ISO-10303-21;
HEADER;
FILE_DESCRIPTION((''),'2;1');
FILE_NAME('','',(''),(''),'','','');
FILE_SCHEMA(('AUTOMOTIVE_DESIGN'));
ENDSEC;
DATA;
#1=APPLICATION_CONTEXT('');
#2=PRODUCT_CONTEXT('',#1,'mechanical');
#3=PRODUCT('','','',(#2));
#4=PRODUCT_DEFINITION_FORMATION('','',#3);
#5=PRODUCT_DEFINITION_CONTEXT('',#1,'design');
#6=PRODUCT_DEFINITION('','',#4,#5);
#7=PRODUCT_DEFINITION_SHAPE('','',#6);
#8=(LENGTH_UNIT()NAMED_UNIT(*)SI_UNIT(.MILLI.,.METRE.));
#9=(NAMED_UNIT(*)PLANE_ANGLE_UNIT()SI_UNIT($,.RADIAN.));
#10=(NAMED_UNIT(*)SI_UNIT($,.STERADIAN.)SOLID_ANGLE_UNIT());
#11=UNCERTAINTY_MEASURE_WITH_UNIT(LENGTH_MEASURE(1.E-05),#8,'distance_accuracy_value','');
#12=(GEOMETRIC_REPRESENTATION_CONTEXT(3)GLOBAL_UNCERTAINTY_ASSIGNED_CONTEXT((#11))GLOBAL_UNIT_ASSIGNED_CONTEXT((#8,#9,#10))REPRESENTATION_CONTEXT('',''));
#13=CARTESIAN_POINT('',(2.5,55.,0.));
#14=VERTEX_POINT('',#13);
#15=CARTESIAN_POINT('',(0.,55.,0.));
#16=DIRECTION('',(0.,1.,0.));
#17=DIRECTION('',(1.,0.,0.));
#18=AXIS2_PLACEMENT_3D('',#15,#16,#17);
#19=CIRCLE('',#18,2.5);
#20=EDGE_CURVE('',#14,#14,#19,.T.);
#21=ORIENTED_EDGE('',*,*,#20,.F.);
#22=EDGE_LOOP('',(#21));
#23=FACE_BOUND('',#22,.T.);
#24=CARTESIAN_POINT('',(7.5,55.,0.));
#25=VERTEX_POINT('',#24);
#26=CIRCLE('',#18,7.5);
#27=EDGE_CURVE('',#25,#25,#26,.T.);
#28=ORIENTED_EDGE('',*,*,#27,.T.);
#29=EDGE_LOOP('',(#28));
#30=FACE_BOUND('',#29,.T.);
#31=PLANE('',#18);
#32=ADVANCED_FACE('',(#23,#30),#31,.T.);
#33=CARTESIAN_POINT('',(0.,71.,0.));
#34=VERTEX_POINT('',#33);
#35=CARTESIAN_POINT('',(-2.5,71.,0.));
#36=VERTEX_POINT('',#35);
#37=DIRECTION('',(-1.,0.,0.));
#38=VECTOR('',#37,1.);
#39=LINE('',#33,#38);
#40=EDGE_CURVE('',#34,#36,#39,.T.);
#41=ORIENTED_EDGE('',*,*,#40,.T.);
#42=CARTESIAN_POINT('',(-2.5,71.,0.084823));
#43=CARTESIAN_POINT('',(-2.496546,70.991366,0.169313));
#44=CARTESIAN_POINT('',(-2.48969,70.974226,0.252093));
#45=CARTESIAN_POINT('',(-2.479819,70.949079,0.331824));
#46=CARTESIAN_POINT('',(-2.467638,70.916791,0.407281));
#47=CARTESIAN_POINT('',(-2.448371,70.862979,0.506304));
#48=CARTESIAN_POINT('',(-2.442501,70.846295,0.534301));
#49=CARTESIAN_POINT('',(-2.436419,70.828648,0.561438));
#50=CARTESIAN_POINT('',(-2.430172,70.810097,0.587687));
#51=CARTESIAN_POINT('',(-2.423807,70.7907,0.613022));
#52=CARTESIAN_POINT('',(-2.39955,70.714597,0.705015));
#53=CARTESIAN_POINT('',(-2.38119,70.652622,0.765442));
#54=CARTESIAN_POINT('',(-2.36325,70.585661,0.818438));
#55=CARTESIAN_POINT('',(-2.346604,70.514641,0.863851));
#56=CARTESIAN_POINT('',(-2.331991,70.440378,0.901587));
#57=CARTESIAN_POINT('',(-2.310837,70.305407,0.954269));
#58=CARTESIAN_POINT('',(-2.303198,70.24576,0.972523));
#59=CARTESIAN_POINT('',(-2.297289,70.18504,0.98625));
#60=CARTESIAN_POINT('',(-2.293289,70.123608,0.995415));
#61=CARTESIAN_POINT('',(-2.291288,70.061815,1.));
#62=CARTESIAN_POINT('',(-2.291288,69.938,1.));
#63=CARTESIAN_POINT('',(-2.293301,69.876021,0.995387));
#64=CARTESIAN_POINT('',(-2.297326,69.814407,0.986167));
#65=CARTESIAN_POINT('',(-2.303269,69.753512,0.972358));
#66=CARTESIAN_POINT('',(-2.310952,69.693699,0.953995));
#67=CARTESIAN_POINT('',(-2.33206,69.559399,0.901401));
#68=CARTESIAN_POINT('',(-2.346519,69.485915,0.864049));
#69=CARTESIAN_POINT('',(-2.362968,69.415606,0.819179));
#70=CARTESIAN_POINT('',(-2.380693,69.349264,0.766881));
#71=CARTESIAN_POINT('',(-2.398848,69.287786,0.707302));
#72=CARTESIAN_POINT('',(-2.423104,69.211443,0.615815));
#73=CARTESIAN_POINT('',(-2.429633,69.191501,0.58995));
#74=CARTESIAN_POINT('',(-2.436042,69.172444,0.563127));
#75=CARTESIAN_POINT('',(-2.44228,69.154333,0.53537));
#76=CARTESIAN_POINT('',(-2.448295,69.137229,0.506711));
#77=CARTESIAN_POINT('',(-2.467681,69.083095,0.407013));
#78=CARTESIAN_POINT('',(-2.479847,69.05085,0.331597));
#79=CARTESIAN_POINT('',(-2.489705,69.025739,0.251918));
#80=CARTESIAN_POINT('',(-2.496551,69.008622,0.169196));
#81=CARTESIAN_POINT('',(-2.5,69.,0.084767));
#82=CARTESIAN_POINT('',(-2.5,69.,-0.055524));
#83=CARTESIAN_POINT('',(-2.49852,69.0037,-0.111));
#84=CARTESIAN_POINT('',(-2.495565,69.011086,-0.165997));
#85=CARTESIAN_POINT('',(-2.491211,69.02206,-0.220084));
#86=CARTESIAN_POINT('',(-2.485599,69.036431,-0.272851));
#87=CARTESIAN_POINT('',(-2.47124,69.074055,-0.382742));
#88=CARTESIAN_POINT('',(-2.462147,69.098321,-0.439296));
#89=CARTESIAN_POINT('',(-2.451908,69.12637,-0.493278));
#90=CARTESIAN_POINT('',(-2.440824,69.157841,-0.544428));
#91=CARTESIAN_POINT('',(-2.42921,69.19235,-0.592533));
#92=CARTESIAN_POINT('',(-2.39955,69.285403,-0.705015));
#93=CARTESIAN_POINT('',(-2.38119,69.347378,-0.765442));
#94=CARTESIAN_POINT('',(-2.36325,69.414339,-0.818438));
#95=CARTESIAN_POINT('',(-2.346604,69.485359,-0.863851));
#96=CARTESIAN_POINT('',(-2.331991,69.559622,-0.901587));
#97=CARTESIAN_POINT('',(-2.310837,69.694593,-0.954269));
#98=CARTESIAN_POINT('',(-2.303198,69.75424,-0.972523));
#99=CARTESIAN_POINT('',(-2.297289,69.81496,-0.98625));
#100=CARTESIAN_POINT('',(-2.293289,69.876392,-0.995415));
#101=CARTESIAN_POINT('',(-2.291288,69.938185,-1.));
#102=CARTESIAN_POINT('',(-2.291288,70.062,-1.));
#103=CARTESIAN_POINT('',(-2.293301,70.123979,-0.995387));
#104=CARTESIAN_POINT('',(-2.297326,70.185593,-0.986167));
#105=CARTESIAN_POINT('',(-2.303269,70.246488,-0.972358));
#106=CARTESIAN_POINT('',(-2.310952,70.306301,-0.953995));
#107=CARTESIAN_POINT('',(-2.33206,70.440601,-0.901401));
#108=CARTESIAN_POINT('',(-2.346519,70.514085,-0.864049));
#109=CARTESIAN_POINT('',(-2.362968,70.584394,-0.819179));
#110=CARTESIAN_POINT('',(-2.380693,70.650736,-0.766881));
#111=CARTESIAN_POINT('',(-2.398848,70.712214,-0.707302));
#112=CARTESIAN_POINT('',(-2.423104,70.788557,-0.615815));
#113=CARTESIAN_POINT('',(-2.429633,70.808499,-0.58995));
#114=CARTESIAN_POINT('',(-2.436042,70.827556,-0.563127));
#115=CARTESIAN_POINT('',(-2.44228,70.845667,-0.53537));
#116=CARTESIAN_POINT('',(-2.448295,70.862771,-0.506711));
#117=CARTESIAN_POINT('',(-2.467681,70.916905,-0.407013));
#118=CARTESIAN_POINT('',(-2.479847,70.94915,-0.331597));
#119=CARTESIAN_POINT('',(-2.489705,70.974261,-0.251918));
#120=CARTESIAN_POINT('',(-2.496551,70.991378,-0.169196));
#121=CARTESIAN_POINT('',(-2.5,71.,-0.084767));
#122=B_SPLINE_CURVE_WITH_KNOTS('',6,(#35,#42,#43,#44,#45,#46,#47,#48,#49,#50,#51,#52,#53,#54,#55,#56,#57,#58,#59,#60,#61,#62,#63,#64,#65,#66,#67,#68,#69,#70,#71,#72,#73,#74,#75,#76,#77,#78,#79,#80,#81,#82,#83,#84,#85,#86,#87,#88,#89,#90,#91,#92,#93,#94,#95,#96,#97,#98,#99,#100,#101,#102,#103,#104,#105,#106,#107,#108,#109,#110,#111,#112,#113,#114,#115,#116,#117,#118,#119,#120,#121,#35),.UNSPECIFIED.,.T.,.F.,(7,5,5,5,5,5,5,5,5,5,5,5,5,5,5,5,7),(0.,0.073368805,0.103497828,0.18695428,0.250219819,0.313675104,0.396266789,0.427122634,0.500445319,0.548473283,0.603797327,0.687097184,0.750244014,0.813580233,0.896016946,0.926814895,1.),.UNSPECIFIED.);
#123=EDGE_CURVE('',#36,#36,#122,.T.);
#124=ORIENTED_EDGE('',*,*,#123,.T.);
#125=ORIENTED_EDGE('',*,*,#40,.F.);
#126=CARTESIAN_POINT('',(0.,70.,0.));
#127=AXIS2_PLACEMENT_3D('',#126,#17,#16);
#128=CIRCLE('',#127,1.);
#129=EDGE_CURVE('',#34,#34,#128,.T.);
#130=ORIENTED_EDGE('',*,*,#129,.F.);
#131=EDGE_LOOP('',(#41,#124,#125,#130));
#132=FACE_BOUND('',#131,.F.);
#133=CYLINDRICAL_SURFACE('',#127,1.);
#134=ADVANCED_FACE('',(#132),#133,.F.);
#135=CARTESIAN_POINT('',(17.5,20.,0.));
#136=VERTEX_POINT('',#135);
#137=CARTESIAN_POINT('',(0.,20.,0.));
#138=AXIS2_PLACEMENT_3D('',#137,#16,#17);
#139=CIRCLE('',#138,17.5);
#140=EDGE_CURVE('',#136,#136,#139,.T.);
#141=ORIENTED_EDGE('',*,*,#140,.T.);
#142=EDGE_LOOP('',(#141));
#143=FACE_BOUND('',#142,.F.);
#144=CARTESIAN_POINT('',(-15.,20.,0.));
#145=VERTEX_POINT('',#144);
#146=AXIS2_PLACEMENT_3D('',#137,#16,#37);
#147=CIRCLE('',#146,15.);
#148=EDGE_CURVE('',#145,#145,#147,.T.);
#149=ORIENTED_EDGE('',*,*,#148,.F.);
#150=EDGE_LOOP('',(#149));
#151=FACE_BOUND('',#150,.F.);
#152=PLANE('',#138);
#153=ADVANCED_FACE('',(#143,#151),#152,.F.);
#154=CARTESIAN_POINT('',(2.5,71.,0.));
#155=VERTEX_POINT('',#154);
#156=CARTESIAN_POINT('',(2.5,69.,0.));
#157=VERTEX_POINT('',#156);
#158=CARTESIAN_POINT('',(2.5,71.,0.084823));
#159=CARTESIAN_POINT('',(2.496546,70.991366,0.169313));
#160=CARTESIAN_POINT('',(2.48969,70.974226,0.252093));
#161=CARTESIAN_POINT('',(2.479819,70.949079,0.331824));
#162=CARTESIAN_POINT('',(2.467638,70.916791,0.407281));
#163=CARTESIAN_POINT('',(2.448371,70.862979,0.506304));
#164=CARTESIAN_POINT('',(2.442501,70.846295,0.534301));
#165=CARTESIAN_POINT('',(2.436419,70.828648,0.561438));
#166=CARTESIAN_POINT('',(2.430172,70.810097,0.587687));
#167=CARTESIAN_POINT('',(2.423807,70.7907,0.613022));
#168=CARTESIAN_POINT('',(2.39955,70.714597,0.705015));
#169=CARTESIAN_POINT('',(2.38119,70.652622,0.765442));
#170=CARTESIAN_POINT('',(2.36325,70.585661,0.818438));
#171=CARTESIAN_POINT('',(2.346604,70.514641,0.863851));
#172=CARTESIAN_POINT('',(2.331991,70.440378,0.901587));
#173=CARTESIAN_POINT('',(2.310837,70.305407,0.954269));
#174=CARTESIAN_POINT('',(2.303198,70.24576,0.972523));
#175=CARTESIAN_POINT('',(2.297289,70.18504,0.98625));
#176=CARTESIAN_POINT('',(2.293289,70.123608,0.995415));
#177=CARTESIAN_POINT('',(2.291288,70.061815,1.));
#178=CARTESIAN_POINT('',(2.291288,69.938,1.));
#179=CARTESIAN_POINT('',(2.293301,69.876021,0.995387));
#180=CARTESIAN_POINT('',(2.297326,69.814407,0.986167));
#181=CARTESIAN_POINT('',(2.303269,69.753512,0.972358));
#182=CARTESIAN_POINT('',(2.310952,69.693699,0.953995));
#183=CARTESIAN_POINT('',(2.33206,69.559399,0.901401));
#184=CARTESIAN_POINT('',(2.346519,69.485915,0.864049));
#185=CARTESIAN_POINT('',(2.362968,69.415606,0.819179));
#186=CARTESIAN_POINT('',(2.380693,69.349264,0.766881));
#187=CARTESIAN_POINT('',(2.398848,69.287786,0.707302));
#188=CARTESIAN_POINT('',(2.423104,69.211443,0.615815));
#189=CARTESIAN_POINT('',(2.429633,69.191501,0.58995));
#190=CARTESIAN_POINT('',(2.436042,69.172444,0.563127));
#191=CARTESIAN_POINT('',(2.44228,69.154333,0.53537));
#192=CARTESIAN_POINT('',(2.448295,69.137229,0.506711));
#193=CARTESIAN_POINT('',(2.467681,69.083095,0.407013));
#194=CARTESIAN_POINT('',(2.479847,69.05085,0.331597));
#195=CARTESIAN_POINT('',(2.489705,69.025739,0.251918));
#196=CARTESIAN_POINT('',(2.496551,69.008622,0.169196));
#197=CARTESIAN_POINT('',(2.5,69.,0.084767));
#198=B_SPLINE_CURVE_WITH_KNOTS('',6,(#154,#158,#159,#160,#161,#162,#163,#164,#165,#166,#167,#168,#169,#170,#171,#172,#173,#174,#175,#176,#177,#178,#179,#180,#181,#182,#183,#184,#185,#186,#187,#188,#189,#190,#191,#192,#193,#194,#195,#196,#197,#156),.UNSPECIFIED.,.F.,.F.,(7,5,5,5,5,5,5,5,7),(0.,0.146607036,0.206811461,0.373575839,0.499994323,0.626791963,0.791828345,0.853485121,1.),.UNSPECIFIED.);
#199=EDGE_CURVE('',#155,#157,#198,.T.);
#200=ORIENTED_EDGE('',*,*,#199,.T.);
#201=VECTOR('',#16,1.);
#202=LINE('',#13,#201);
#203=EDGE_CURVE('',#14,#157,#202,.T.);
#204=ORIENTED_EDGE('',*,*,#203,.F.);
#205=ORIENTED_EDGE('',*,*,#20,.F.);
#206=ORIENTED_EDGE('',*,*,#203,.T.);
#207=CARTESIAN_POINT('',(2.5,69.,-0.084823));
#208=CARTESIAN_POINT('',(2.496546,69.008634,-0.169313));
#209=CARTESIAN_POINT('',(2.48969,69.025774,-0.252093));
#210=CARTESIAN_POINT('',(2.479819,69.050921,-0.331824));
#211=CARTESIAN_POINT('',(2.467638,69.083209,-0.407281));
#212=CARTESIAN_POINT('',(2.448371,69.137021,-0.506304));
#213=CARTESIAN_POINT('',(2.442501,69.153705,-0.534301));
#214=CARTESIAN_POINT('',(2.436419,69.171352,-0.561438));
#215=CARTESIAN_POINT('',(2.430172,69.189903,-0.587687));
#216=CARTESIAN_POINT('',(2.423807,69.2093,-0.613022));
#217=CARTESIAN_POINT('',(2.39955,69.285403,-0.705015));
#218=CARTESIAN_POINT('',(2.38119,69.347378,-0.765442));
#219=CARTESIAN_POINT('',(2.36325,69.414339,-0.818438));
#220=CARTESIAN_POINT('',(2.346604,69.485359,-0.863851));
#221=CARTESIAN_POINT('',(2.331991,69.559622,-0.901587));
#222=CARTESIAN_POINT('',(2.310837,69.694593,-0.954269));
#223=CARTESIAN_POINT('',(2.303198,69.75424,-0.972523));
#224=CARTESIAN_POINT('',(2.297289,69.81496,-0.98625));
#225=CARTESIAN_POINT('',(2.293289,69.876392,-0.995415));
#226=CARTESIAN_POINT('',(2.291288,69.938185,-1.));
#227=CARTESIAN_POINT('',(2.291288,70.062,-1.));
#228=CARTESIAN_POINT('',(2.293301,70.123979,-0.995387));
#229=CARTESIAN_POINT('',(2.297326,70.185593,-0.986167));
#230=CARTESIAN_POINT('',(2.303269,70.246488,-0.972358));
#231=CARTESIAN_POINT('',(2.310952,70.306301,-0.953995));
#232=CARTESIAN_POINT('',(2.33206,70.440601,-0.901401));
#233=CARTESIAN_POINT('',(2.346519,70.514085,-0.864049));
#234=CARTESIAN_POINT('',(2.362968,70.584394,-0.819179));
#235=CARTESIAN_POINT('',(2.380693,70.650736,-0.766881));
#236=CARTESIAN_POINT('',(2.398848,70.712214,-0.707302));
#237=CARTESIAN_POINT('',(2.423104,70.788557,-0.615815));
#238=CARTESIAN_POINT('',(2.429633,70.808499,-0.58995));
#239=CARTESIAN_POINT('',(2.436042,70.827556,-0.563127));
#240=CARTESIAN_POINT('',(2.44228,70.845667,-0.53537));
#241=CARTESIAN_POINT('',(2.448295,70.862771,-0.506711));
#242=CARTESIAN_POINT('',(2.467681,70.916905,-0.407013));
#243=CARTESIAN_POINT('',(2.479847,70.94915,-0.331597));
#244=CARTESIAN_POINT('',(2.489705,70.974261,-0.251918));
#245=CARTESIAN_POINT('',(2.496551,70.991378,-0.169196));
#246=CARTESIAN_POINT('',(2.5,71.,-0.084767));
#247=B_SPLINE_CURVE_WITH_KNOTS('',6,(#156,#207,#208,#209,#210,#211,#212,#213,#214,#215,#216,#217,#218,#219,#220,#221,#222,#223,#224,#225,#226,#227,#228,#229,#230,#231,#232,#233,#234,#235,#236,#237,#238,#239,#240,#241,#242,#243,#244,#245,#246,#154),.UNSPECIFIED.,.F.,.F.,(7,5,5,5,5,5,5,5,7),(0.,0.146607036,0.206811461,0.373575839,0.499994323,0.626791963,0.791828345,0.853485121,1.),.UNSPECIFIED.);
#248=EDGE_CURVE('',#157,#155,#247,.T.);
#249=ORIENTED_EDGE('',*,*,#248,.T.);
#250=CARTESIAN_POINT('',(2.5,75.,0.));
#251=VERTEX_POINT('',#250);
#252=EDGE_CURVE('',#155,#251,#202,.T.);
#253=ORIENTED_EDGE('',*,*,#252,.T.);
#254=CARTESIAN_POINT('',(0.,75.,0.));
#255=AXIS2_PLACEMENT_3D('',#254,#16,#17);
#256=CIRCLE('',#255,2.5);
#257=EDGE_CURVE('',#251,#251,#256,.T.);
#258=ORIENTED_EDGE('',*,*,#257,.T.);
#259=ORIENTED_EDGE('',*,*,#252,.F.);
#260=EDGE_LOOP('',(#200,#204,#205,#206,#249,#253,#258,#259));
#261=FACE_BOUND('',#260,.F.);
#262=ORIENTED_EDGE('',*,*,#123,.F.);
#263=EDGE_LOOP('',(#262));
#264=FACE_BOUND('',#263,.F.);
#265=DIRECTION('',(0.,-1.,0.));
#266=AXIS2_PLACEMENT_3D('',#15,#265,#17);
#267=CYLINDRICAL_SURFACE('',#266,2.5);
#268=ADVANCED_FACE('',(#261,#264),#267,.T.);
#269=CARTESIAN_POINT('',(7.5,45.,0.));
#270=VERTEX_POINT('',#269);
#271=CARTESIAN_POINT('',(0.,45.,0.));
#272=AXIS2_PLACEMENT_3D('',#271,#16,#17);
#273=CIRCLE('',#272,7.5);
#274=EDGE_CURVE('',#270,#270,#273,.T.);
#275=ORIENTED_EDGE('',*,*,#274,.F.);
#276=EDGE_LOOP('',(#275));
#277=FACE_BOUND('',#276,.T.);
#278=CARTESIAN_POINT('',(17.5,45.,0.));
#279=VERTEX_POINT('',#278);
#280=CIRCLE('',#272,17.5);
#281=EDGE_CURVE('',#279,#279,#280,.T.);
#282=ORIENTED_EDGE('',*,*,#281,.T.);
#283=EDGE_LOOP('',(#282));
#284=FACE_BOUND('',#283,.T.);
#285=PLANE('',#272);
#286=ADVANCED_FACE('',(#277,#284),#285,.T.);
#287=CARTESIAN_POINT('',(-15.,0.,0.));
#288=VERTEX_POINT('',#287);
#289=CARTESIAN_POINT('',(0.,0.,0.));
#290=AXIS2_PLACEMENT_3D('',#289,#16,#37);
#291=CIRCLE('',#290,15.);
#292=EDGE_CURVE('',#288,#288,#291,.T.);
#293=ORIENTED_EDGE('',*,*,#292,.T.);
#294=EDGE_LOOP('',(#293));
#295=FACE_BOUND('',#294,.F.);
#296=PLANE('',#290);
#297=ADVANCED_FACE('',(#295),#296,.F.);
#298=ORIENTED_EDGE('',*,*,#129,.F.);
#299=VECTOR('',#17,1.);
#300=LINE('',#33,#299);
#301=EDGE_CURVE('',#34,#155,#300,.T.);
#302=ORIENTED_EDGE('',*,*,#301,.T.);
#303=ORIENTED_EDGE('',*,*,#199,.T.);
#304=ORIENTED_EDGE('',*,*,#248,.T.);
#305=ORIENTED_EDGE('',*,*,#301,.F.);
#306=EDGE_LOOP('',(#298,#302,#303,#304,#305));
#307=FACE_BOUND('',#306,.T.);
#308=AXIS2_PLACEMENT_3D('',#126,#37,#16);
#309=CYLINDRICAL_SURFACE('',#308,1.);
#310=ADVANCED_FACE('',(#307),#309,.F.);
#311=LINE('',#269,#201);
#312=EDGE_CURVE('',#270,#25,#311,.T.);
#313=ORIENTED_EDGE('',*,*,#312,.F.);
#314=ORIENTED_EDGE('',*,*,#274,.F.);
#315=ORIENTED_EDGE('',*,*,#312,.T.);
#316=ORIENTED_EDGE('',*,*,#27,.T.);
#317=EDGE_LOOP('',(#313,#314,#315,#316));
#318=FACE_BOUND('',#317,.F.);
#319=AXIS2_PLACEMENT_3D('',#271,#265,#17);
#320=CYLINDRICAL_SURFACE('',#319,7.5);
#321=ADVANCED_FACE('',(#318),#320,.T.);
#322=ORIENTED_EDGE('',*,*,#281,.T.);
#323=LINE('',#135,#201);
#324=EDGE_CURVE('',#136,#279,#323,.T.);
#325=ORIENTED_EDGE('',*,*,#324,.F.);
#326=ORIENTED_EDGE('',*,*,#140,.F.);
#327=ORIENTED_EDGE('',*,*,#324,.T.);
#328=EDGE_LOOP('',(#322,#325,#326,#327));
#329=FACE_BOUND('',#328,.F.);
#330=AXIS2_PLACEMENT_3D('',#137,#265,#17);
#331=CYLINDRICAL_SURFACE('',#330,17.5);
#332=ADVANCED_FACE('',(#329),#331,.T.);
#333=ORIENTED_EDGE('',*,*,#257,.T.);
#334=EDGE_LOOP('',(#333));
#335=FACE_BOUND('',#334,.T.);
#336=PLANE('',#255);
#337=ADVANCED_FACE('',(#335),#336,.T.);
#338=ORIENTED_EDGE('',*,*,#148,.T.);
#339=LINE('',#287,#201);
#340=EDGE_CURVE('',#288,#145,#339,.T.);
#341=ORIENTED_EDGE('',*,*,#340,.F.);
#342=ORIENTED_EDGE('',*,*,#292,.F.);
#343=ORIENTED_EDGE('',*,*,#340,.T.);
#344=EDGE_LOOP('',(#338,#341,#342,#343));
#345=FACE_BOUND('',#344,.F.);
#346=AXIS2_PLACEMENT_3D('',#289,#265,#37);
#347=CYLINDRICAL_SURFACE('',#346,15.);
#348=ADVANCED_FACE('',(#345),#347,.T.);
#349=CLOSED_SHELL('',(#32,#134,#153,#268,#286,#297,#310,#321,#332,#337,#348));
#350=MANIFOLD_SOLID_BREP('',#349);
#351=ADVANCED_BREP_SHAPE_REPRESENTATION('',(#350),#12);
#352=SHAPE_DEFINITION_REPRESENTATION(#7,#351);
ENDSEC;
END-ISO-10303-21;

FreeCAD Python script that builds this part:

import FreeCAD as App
import Part
import Sketcher
from FreeCAD import Vector

doc = App.newDocument("Part")
params = doc.addObject("Spreadsheet::Sheet", "Params")
for row, (alias, value) in enumerate([
    ("sketch1_diameter", "30 mm"),
    ("pad1_length", "20 mm"),
    ("sketch2_diameter", "35 mm"),
    ("pad2_length", "25 mm"),
    ("sketch3_diameter", "15 mm"),
    ("pad3_length", "10 mm"),
    ("sketch4_diameter", "5 mm"),
    ("pad4_length", "20 mm"),
    ("sketch5_diameter", "2 mm"),
    ("pocket1_length", "10 mm"),
], start=1):
    params.set(f"A{row}", alias)
    params.set(f"B{row}", "=" + value)
    params.setAlias(f"B{row}", alias)

body = doc.addObject("PartDesign::Body", "Body")

# Sketch on XZ plane
sketch1 = body.newObject("Sketcher::SketchObject", "Sketch")
sketch1.AttachmentSupport = (doc.getObject("XZ_Plane"), [""])
sketch1.MapMode = "FlatFace"
sketch1.addGeometry(Part.Circle(Vector(0, 0, 0), Vector(0, 0, 1), 15), False)
sketch1.addConstraint([
    Sketcher.Constraint("Coincident", 0, 3, -1, 1),
    Sketcher.Constraint("Diameter", 0, 30.0),
])
sketch1.setExpression("Constraints[1]", "Params.sketch1_diameter")
pad1 = body.newObject("PartDesign::Pad", "Pad")
pad1.Profile = sketch1
pad1.setExpression("Length", "Params.pad1_length")
pad1.Reversed = True

# Sketch on XZ plane
sketch2 = body.newObject("Sketcher::SketchObject", "Sketch001")
sketch2.AttachmentSupport = (doc.getObject("XZ_Plane"), [""])
sketch2.MapMode = "FlatFace"
sketch2.AttachmentOffset = App.Placement(Vector(0, 0, -20), App.Rotation())
sketch2.addGeometry(Part.Circle(Vector(0, 0, 0), Vector(0, 0, 1), 18), False)
sketch2.addConstraint([
    Sketcher.Constraint("Coincident", 0, 3, -1, 1),
    Sketcher.Constraint("Diameter", 0, 35.0),
])
sketch2.setExpression("Constraints[1]", "Params.sketch2_diameter")
pad2 = body.newObject("PartDesign::Pad", "Pad001")
pad2.Profile = sketch2
pad2.setExpression("Length", "Params.pad2_length")
pad2.Reversed = True

# Sketch on XZ plane
sketch3 = body.newObject("Sketcher::SketchObject", "Sketch002")
sketch3.AttachmentSupport = (doc.getObject("XZ_Plane"), [""])
sketch3.MapMode = "FlatFace"
sketch3.AttachmentOffset = App.Placement(Vector(0, 0, -45), App.Rotation())
sketch3.addGeometry(Part.Circle(Vector(0, 0, 0), Vector(0, 0, 1), 8), False)
sketch3.addConstraint([
    Sketcher.Constraint("Coincident", 0, 3, -1, 1),
    Sketcher.Constraint("Diameter", 0, 15.0),
])
sketch3.setExpression("Constraints[1]", "Params.sketch3_diameter")
pad3 = body.newObject("PartDesign::Pad", "Pad002")
pad3.Profile = sketch3
pad3.setExpression("Length", "Params.pad3_length")
pad3.Reversed = True

# Sketch on XZ plane
sketch4 = body.newObject("Sketcher::SketchObject", "Sketch003")
sketch4.AttachmentSupport = (doc.getObject("XZ_Plane"), [""])
sketch4.MapMode = "FlatFace"
sketch4.AttachmentOffset = App.Placement(Vector(0, 0, -55), App.Rotation())
sketch4.addGeometry(Part.Circle(Vector(0, 0, 0), Vector(0, 0, 1), 2.5), False)
sketch4.addConstraint([
    Sketcher.Constraint("Coincident", 0, 3, -1, 1),
    Sketcher.Constraint("Diameter", 0, 5.0),
])
sketch4.setExpression("Constraints[1]", "Params.sketch4_diameter")
pad4 = body.newObject("PartDesign::Pad", "Pad003")
pad4.Profile = sketch4
pad4.setExpression("Length", "Params.pad4_length")
pad4.Reversed = True

# Sketch on YZ plane
sketch5 = body.newObject("Sketcher::SketchObject", "Sketch004")
sketch5.AttachmentSupport = (doc.getObject("YZ_Plane"), [""])
sketch5.MapMode = "FlatFace"
sketch5.addGeometry(Part.Circle(Vector(70, 0, 0), Vector(0, 0, 1), 1), False)
sketch5.addConstraint([
    Sketcher.Constraint("PointOnObject", 0, 3, -1),
    Sketcher.Constraint("Diameter", 0, 2.0),
    Sketcher.Constraint("DistanceX", -1, 1, 0, 3, 70.0),
])
sketch5.setExpression("Constraints[1]", "Params.sketch5_diameter")
pocket1 = body.newObject("PartDesign::Pocket", "Pocket")
pocket1.Profile = sketch5
pocket1.setExpression("Length", "Params.pocket1_length")
pocket1.Midplane = True

doc.recompute()
